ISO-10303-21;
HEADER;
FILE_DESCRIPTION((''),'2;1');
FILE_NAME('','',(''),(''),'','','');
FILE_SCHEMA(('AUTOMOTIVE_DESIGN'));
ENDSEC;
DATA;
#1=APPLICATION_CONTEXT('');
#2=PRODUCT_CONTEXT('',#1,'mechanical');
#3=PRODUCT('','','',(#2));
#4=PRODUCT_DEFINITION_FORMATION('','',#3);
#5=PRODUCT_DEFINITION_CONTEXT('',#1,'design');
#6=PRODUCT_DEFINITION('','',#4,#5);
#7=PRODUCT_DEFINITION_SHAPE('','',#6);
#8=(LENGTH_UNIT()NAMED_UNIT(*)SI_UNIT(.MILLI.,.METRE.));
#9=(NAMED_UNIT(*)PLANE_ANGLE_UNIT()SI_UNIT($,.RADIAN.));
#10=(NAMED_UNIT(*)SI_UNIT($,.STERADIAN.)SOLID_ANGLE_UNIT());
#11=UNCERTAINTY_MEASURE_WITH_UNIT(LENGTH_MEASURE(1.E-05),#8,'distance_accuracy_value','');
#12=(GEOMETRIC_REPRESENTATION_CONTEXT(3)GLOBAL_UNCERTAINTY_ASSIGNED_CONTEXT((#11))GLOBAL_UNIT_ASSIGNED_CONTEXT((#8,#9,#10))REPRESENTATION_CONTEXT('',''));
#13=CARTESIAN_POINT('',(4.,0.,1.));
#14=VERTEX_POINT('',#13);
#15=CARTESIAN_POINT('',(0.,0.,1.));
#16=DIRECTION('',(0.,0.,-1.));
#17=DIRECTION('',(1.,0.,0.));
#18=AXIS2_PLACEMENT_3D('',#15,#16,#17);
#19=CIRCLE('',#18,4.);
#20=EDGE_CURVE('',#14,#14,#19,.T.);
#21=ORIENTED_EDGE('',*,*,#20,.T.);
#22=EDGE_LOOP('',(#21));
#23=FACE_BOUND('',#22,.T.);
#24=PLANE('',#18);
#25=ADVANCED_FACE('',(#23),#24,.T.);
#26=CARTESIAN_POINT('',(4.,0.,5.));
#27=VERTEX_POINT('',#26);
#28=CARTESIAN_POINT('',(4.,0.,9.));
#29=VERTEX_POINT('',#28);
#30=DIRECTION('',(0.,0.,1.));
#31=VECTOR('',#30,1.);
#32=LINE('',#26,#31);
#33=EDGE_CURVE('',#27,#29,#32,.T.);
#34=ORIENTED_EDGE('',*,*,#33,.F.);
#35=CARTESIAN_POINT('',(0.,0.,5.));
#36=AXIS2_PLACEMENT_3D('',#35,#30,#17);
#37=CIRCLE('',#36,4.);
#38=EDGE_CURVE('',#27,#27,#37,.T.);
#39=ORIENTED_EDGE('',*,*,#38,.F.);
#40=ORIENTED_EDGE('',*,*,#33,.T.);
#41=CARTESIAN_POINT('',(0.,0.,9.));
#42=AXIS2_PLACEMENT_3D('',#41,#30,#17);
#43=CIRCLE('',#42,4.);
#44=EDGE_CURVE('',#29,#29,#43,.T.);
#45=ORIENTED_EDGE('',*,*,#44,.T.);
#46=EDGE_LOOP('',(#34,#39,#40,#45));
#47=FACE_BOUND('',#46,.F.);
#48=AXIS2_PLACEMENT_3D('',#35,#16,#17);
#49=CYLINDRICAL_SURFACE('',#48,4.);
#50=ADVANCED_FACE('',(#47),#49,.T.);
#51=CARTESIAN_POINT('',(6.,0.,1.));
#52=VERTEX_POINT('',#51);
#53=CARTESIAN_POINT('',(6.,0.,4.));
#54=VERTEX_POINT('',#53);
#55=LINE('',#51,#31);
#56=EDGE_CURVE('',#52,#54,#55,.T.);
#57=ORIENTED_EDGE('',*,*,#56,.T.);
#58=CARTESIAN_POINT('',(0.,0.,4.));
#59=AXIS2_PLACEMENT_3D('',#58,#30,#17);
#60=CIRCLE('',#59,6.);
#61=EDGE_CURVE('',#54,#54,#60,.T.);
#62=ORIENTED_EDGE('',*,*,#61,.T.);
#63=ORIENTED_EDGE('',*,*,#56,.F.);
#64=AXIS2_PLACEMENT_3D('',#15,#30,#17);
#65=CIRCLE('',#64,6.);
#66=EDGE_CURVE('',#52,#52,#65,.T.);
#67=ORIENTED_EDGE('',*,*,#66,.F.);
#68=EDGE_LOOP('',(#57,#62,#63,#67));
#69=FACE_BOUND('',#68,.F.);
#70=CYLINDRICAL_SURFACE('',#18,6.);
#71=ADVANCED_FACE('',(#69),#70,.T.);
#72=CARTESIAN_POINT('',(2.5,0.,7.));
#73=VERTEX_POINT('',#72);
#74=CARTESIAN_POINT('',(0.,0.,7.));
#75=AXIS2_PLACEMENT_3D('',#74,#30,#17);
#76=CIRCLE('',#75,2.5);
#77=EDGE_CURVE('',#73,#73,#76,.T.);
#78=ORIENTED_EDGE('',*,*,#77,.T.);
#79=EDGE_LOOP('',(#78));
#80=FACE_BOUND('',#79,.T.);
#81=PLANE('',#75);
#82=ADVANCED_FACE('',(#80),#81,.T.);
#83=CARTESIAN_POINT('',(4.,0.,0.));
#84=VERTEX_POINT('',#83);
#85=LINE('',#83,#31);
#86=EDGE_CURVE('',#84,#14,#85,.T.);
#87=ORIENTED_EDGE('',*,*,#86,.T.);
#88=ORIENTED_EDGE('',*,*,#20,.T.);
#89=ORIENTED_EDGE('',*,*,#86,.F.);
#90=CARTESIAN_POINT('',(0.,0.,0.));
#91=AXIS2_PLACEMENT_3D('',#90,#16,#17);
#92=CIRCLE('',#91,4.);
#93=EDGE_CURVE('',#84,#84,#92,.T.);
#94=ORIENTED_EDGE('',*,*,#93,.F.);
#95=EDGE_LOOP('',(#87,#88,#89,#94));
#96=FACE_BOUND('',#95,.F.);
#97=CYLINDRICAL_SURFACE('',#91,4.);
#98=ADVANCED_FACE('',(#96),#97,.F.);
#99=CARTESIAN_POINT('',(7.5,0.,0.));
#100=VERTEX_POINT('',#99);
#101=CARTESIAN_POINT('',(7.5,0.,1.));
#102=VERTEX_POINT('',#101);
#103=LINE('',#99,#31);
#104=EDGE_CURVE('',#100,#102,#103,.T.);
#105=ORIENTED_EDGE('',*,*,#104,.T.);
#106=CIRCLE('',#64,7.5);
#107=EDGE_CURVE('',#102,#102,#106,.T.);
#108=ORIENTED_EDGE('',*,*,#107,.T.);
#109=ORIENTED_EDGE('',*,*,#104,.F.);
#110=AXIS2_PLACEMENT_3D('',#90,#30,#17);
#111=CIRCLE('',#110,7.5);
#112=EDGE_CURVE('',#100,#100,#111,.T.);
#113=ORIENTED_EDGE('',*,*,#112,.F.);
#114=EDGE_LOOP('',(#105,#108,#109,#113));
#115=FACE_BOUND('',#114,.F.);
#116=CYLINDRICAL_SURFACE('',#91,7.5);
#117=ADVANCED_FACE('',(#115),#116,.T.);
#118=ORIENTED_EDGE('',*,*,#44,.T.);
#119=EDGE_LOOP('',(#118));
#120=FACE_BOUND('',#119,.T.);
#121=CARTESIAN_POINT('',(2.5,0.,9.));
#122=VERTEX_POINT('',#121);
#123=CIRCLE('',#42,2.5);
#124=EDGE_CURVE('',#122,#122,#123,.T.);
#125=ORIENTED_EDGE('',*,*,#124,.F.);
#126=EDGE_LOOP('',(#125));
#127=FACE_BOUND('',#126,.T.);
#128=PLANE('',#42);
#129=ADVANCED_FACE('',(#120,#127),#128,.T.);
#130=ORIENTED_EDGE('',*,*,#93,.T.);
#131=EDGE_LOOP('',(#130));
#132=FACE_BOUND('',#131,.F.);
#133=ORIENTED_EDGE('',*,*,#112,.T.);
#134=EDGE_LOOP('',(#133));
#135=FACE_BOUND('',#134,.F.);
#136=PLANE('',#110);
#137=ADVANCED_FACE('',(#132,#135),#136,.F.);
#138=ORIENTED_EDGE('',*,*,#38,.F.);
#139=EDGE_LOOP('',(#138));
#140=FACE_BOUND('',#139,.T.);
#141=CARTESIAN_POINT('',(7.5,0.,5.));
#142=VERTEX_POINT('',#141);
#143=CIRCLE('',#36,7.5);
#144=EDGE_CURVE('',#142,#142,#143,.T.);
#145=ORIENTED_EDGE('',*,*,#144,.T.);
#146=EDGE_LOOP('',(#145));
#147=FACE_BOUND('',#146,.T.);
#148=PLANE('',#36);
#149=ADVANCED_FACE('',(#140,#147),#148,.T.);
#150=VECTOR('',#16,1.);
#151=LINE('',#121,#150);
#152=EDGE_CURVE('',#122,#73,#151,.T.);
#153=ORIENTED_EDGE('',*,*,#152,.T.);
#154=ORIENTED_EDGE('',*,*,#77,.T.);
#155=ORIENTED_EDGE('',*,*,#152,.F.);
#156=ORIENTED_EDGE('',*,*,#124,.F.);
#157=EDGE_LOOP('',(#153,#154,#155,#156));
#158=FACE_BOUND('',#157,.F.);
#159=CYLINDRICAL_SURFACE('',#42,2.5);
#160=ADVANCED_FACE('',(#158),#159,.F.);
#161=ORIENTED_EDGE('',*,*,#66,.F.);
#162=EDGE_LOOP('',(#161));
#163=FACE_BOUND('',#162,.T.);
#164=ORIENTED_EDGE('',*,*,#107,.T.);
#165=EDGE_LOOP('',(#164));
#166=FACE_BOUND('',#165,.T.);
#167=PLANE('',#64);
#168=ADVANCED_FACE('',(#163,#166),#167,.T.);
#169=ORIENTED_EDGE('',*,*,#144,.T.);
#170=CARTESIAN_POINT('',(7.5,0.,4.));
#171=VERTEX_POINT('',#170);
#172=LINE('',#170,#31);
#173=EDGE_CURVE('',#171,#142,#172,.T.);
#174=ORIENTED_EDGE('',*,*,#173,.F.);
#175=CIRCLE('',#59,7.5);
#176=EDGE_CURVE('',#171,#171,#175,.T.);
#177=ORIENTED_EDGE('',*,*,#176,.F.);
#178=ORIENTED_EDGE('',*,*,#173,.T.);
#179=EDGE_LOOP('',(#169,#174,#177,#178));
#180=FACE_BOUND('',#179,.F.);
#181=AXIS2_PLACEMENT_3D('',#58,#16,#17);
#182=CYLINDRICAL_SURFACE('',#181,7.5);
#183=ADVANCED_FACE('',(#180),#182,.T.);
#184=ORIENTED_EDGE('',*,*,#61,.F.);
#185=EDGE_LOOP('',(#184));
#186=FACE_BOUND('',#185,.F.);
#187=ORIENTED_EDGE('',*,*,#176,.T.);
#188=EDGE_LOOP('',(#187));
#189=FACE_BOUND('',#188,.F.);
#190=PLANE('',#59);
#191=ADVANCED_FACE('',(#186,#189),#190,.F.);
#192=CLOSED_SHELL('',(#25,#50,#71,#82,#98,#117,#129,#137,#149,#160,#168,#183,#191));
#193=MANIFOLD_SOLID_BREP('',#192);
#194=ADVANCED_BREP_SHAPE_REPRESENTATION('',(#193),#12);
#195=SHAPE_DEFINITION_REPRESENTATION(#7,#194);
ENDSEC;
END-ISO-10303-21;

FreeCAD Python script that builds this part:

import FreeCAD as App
import Part
import Sketcher

V = App.Vector
Q = App.Units.Quantity

doc = App.newDocument("Part")
body = doc.addObject("PartDesign::Body", "Body")

sketch1 = body.newObject("Sketcher::SketchObject", "Sketch")
sketch1.AttachmentSupport = (doc.getObject("XY_Plane"), [""])
sketch1.MapMode = "FlatFace"
sketch1.addGeometry(Part.Circle(V(0, 0, 0), V(0, 0, 1), 8), False)
sketch1.addConstraint(Sketcher.Constraint("Coincident", 0, 3, -1, 1))
sketch1.addConstraint(Sketcher.Constraint("Diameter", 0, Q("15 mm")))
pad1 = body.newObject("PartDesign::Pad", "Pad")
pad1.Profile = sketch1
pad1.Length = 1

sketch2 = body.newObject("Sketcher::SketchObject", "Sketch001")
sketch2.AttachmentSupport = (doc.getObject("XY_Plane"), [""])
sketch2.MapMode = "FlatFace"
sketch2.AttachmentOffset = App.Placement(V(0, 0, 1), App.Rotation())
sketch2.addGeometry(Part.Circle(V(0, 0, 0), V(0, 0, 1), 6), False)
sketch2.addConstraint(Sketcher.Constraint("Coincident", 0, 3, -1, 1))
sketch2.addConstraint(Sketcher.Constraint("Diameter", 0, Q("12 mm")))
pad2 = body.newObject("PartDesign::Pad", "Pad001")
pad2.Profile = sketch2
pad2.Length = 3

sketch3 = body.newObject("Sketcher::SketchObject", "Sketch002")
sketch3.AttachmentSupport = (doc.getObject("XY_Plane"), [""])
sketch3.MapMode = "FlatFace"
sketch3.AttachmentOffset = App.Placement(V(0, 0, 4), App.Rotation())
sketch3.addGeometry(Part.Circle(V(0, 0, 0), V(0, 0, 1), 8), False)
sketch3.addConstraint(Sketcher.Constraint("Coincident", 0, 3, -1, 1))
sketch3.addConstraint(Sketcher.Constraint("Diameter", 0, Q("15 mm")))
pad3 = body.newObject("PartDesign::Pad", "Pad002")
pad3.Profile = sketch3
pad3.Length = 1

sketch4 = body.newObject("Sketcher::SketchObject", "Sketch003")
sketch4.AttachmentSupport = (doc.getObject("XY_Plane"), [""])
sketch4.MapMode = "FlatFace"
sketch4.AttachmentOffset = App.Placement(V(0, 0, 5), App.Rotation())
sketch4.addGeometry(Part.Circle(V(0, 0, 0), V(0, 0, 1), 4), False)
sketch4.addConstraint(Sketcher.Constraint("Coincident", 0, 3, -1, 1))
sketch4.addConstraint(Sketcher.Constraint("Diameter", 0, Q("8 mm")))
pad4 = body.newObject("PartDesign::Pad", "Pad003")
pad4.Profile = sketch4
pad4.Length = 4

sketch5 = body.newObject("Sketcher::SketchObject", "Sketch004")
sketch5.AttachmentSupport = (doc.getObject("XY_Plane"), [""])
sketch5.MapMode = "FlatFace"
sketch5.AttachmentOffset = App.Placement(V(0, 0, 9), App.Rotation())
sketch5.addGeometry(Part.Circle(V(0, 0, 0), V(0, 0, 1), 2.5), False)
sketch5.addConstraint(Sketcher.Constraint("Coincident", 0, 3, -1, 1))
sketch5.addConstraint(Sketcher.Constraint("Diameter", 0, Q("5 mm")))
pocket1 = body.newObject("PartDesign::Pocket", "Pocket")
pocket1.Profile = sketch5
pocket1.Length = 2

sketch6 = body.newObject("Sketcher::SketchObject", "Sketch005")
sketch6.AttachmentSupport = (doc.getObject("XY_Plane"), [""])
sketch6.MapMode = "FlatFace"
sketch6.addGeometry(Part.Circle(V(0, 0, 0), V(0, 0, 1), 4), False)
sketch6.addConstraint(Sketcher.Constraint("Coincident", 0, 3, -1, 1))
sketch6.addConstraint(Sketcher.Constraint("Diameter", 0, Q("8 mm")))
pocket2 = body.newObject("PartDesign::Pocket", "Pocket001")
pocket2.Profile = sketch6
pocket2.Length = 1
pocket2.Reversed = True

doc.recompute()
